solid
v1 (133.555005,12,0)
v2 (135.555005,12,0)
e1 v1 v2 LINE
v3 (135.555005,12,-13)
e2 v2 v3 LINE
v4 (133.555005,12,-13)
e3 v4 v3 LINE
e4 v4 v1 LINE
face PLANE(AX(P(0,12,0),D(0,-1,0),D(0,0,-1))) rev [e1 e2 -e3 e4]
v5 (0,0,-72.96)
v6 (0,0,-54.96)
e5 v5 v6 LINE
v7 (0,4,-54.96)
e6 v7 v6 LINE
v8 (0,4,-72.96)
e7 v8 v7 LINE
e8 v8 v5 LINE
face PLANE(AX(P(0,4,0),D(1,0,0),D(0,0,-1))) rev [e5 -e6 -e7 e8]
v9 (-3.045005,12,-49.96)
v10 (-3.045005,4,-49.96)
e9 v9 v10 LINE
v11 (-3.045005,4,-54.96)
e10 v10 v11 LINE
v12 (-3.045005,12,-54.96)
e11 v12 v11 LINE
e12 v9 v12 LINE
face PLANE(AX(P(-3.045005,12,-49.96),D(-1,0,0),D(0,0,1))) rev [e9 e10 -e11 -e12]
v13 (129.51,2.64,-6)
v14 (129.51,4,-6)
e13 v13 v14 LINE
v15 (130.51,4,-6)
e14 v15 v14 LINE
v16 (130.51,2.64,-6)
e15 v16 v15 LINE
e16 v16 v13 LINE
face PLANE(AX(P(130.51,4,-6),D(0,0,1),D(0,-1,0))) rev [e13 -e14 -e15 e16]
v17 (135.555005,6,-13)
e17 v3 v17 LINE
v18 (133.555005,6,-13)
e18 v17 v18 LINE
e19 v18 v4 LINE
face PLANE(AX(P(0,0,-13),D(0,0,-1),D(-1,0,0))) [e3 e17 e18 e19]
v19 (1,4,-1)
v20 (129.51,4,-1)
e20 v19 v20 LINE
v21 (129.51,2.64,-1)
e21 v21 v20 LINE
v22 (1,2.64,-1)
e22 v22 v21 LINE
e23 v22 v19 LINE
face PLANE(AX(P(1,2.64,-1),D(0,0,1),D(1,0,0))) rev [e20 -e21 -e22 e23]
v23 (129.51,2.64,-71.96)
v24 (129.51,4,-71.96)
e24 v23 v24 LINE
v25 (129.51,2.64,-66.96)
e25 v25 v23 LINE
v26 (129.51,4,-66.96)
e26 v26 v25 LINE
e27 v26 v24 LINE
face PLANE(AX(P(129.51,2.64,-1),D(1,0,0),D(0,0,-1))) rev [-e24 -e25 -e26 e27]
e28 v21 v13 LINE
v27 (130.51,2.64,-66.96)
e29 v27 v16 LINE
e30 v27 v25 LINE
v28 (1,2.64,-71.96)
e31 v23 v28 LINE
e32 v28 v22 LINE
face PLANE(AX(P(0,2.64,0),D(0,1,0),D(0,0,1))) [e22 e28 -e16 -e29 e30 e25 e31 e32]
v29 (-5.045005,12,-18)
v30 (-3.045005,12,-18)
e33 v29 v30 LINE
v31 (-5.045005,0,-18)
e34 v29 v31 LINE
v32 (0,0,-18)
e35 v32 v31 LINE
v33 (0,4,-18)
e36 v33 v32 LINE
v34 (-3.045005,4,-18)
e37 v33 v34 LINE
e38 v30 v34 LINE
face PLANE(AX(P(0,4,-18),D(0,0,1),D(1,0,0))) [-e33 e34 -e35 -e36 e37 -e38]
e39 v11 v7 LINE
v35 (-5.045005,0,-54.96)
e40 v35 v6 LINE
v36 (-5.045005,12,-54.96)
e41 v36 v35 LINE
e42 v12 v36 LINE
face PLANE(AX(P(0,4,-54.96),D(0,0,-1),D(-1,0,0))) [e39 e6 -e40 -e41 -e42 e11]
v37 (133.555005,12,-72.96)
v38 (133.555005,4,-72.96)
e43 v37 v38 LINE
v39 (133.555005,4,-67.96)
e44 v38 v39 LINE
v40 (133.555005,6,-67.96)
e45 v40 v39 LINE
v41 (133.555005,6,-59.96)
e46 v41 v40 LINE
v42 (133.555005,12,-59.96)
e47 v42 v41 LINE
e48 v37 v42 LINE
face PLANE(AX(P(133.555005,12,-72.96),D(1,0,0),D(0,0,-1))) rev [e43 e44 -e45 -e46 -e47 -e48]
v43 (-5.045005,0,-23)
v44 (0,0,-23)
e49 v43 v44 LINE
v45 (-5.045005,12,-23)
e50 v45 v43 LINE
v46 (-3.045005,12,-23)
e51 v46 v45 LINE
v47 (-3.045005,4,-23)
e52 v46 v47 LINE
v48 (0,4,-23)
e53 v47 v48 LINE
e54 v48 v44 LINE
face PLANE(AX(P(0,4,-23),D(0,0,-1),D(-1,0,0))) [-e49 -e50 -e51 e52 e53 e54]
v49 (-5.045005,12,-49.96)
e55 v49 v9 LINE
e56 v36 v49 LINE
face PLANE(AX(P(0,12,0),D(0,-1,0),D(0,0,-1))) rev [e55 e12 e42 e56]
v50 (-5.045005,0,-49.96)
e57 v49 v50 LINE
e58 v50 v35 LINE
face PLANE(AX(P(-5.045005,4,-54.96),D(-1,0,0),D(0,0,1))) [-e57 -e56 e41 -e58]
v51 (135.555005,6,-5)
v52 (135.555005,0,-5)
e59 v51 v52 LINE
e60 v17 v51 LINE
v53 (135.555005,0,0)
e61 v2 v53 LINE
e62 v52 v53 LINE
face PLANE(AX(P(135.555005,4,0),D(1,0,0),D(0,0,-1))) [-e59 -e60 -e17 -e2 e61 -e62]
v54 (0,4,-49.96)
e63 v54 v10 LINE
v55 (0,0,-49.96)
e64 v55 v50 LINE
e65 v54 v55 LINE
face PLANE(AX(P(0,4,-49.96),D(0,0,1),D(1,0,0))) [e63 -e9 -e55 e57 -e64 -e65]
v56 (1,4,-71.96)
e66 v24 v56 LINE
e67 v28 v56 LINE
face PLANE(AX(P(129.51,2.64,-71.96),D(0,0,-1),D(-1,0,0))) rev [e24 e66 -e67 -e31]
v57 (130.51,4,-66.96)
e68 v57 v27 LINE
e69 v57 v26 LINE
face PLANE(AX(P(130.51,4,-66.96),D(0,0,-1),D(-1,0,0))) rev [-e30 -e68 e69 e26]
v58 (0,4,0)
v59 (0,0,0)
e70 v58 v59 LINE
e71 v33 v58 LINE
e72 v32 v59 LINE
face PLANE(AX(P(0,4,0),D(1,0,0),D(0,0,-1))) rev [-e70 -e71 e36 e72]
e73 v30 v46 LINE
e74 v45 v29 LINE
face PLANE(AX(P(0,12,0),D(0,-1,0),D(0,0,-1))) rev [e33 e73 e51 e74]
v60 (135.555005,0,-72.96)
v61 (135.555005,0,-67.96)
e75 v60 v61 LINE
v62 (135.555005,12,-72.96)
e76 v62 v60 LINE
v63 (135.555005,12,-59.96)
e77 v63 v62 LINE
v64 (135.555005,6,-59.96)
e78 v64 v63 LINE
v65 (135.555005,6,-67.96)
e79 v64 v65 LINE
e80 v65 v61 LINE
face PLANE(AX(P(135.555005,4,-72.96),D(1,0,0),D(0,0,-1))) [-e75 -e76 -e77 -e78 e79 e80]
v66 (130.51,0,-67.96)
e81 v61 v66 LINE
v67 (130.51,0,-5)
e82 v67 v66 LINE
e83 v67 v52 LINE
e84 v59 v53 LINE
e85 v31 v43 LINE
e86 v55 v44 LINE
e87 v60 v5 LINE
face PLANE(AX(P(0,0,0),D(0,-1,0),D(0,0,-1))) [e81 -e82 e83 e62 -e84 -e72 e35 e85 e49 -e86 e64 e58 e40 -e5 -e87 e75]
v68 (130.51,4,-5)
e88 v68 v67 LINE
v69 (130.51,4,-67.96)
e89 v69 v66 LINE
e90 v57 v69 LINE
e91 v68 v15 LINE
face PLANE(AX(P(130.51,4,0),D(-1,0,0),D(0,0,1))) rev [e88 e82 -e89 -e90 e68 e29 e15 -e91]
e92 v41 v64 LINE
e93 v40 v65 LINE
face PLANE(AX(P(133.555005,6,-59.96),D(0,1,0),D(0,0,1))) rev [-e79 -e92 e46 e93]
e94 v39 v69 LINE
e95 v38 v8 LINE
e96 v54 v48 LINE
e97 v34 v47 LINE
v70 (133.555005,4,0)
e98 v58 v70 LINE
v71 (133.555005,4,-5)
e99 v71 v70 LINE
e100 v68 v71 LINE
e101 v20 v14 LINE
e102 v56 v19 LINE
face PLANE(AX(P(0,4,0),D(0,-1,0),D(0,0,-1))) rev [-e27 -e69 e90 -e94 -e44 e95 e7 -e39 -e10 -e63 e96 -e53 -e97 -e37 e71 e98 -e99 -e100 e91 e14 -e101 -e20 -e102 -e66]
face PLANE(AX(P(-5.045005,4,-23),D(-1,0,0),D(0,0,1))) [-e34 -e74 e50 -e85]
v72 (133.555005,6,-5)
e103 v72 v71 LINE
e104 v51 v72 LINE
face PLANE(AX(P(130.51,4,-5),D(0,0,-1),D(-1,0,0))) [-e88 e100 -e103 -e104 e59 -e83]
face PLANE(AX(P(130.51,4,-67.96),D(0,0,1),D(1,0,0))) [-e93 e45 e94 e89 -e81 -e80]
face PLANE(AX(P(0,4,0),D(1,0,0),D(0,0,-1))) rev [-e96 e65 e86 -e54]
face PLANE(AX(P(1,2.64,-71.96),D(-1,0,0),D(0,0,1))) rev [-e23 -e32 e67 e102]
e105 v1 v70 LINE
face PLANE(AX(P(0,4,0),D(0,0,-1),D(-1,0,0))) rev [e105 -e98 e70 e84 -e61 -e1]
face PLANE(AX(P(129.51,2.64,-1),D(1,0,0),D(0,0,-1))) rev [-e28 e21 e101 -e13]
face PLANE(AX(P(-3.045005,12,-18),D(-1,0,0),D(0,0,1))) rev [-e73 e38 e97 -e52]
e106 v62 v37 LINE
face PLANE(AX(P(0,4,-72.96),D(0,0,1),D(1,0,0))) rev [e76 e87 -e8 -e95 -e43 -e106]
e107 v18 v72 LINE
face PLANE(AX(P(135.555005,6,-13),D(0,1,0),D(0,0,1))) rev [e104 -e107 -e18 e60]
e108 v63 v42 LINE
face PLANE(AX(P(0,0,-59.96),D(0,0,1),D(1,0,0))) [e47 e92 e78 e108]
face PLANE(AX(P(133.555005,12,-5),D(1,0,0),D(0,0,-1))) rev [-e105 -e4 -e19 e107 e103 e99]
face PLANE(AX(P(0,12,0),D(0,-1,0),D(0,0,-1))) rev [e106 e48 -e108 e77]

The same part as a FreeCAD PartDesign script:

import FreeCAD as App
import Part
import Sketcher
from FreeCAD import Vector
Q = App.Units.Quantity

doc = App.newDocument("Part")
body = doc.addObject("PartDesign::Body", "Body")

# Sketch on XZ plane
sketch1 = body.newObject("Sketcher::SketchObject", "Sketch")
sketch1.AttachmentSupport = (doc.getObject("XZ_Plane"), [""])
sketch1.MapMode = "FlatFace"
sketch1.addGeometry([
    Part.LineSegment(Vector(0, -73, 0), Vector(0, 0, 0)),
    Part.LineSegment(Vector(0, 0, 0), Vector(131, 0, 0)),
    Part.LineSegment(Vector(131, 0, 0), Vector(131, -73, 0)),
    Part.LineSegment(Vector(131, -73, 0), Vector(0, -73, 0)),
], False)
sketch1.addConstraint([
    Sketcher.Constraint("Coincident", 0, 2, 1, 1),
    Sketcher.Constraint("Coincident", 1, 2, 2, 1),
    Sketcher.Constraint("Coincident", 2, 2, 3, 1),
    Sketcher.Constraint("Coincident", 3, 2, 0, 1),
    Sketcher.Constraint("Vertical", 0),
    Sketcher.Constraint("Horizontal", 1),
    Sketcher.Constraint("Vertical", 2),
    Sketcher.Constraint("Horizontal", 3),
    Sketcher.Constraint("Coincident", 0, 2, -1, 1),
    Sketcher.Constraint("DistanceX", 1, 1, 1, 2, Q("130.51 mm")),
    Sketcher.Constraint("DistanceY", 0, 1, 0, 2, Q("72.96 mm")),
])
pad1 = body.newObject("PartDesign::Pad", "Pad")
pad1.Profile = sketch1
pad1.Length = 4
pad1.Reversed = True

# Sketch on XZ plane
sketch2 = body.newObject("Sketcher::SketchObject", "Sketch001")
sketch2.AttachmentSupport = (doc.getObject("XZ_Plane"), [""])
sketch2.MapMode = "FlatFace"
sketch2.AttachmentOffset = App.Placement(Vector(0, 0, -4), App.Rotation())
sketch2.addGeometry([
    Part.LineSegment(Vector(1, -72, 0), Vector(1, -1, 0)),
    Part.LineSegment(Vector(1, -1, 0), Vector(130, -1, 0)),
    Part.LineSegment(Vector(130, -1, 0), Vector(130, -72, 0)),
    Part.LineSegment(Vector(130, -72, 0), Vector(1, -72, 0)),
], False)
sketch2.addConstraint([
    Sketcher.Constraint("Coincident", 0, 2, 1, 1),
    Sketcher.Constraint("Coincident", 1, 2, 2, 1),
    Sketcher.Constraint("Coincident", 2, 2, 3, 1),
    Sketcher.Constraint("Coincident", 3, 2, 0, 1),
    Sketcher.Constraint("Vertical", 0),
    Sketcher.Constraint("Horizontal", 1),
    Sketcher.Constraint("Vertical", 2),
    Sketcher.Constraint("Horizontal", 3),
    Sketcher.Constraint("DistanceX", -1, 1, 0, 2, Q("1 mm")),
    Sketcher.Constraint("DistanceY", 0, 2, -1, 1, Q("1 mm")),
    Sketcher.Constraint("DistanceX", 1, 1, 1, 2, Q("128.51 mm")),
    Sketcher.Constraint("DistanceY", 0, 1, 0, 2, Q("70.96 mm")),
])
pocket1 = body.newObject("PartDesign::Pocket", "Pocket")
pocket1.Profile = sketch2
pocket1.Length = 1.36
pocket1.Reversed = True

# Sketch on YZ plane
sketch3 = body.newObject("Sketcher::SketchObject", "Sketch002")
sketch3.AttachmentSupport = (doc.getObject("YZ_Plane"), [""])
sketch3.MapMode = "FlatFace"
sketch3.AttachmentOffset = App.Placement(Vector(0, 0, 129.51), App.Rotation())
sketch3.addGeometry([
    Part.LineSegment(Vector(4, -67, 0), Vector(2.6, -67, 0)),
    Part.LineSegment(Vector(2.6, -67, 0), Vector(2.6, -6, 0)),
    Part.LineSegment(Vector(2.6, -6, 0), Vector(4, -6, 0)),
    Part.LineSegment(Vector(4, -6, 0), Vector(4, -67, 0)),
], False)
sketch3.addConstraint([
    Sketcher.Constraint("Coincident", 0, 2, 1, 1),
    Sketcher.Constraint("Coincident", 1, 2, 2, 1),
    Sketcher.Constraint("Coincident", 2, 2, 3, 1),
    Sketcher.Constraint("Coincident", 3, 2, 0, 1),
    Sketcher.Constraint("Horizontal", 0),
    Sketcher.Constraint("Vertical", 1),
    Sketcher.Constraint("Horizontal", 2),
    Sketcher.Constraint("Vertical", 3),
    Sketcher.Constraint("DistanceY", 1, 2, -1, 1, Q("6 mm")),
    Sketcher.Constraint("DistanceX", -1, 1, 2, 2, Q("4 mm")),
    Sketcher.Constraint("DistanceX", 0, 2, 0, 1, Q("1.36 mm")),
    Sketcher.Constraint("DistanceY", 1, 1, 1, 2, Q("60.96 mm")),
])
pocket2 = body.newObject("PartDesign::Pocket", "Pocket001")
pocket2.Profile = sketch3
pocket2.Type = "ThroughAll"
pocket2.Reversed = True

# Sketch on XZ plane
sketch4 = body.newObject("Sketcher::SketchObject", "Sketch003")
sketch4.AttachmentSupport = (doc.getObject("XZ_Plane"), [""])
sketch4.MapMode = "FlatFace"
sketch4.addGeometry([
    Part.LineSegment(Vector(131, -68, 0), Vector(131, -73, 0)),  # 0
    Part.LineSegment(Vector(131, -73, 0), Vector(136, -73, 0)),  # 1
    Part.LineSegment(Vector(136, -73, 0), Vector(136, -68, 0)),  # 2
    Part.LineSegment(Vector(136, -68, 0), Vector(131, -68, 0)),  # 3
    Part.LineSegment(Vector(131, 0, 0), Vector(131, -5, 0)),  # 4
    Part.LineSegment(Vector(131, -5, 0), Vector(136, -5, 0)),  # 5
    Part.LineSegment(Vector(136, -5, 0), Vector(136, 0, 0)),  # 6
    Part.LineSegment(Vector(136, 0, 0), Vector(131, 0, 0)),  # 7
], False)
sketch4.addConstraint([
    Sketcher.Constraint("Coincident", 0, 2, 1, 1),
    Sketcher.Constraint("Coincident", 1, 2, 2, 1),
    Sketcher.Constraint("Coincident", 2, 2, 3, 1),
    Sketcher.Constraint("Coincident", 3, 2, 0, 1),
    Sketcher.Constraint("Coincident", 4, 2, 5, 1),
    Sketcher.Constraint("Coincident", 5, 2, 6, 1),
    Sketcher.Constraint("Coincident", 6, 2, 7, 1),
    Sketcher.Constraint("Coincident", 7, 2, 4, 1),
    Sketcher.Constraint("Vertical", 0),
    Sketcher.Constraint("Horizontal", 1),
    Sketcher.Constraint("Vertical", 2),
    Sketcher.Constraint("Horizontal", 3),
    Sketcher.Constraint("Vertical", 4),
    Sketcher.Constraint("Horizontal", 5),
    Sketcher.Constraint("Vertical", 6),
    Sketcher.Constraint("Horizontal", 7),
    Sketcher.Constraint("PointOnObject", 6, 2, -1),
    Sketcher.Constraint("Vertical", 3, 2, 4, 2),
    Sketcher.Constraint("Vertical", 2, 2, 5, 2),
    Sketcher.Constraint("Equal", 2, 4),
    Sketcher.Constraint("DistanceY", 0, 2, 0, 1, Q("5 mm")),
    Sketcher.Constraint("DistanceX", -1, 1, 0, 2, Q("130.51 mm")),
    Sketcher.Constraint("DistanceY", 0, 2, -1, 1, Q("72.96 mm")),
    Sketcher.Constraint("DistanceX", 1, 1, 1, 2, Q("5.045005 mm")),
])
pad2 = body.newObject("PartDesign::Pad", "Pad001")
pad2.Profile = sketch4
pad2.Length = 4
pad2.Reversed = True

# Sketch on XZ plane
sketch5 = body.newObject("Sketcher::SketchObject", "Sketch004")
sketch5.AttachmentSupport = (doc.getObject("XZ_Plane"), [""])
sketch5.MapMode = "FlatFace"
sketch5.AttachmentOffset = App.Placement(Vector(0, 0, -4), App.Rotation())
sketch5.addGeometry([
    Part.LineSegment(Vector(133.6, -73, 0), Vector(133.6, -68, 0)),  # 0
    Part.LineSegment(Vector(133.6, -68, 0), Vector(135.6, -68, 0)),  # 1
    Part.LineSegment(Vector(135.6, -68, 0), Vector(135.6, -73, 0)),  # 2
    Part.LineSegment(Vector(135.6, -73, 0), Vector(133.6, -73, 0)),  # 3
    Part.LineSegment(Vector(133.6, -5, 0), Vector(133.6, 0, 0)),  # 4
    Part.LineSegment(Vector(133.6, 0, 0), Vector(135.6, 0, 0)),  # 5
    Part.LineSegment(Vector(135.6, 0, 0), Vector(135.6, -5, 0)),  # 6
    Part.LineSegment(Vector(135.6, -5, 0), Vector(133.6, -5, 0)),  # 7
], False)
sketch5.addConstraint([
    Sketcher.Constraint("Coincident", 0, 2, 1, 1),
    Sketcher.Constraint("Coincident", 1, 2, 2, 1),
    Sketcher.Constraint("Coincident", 2, 2, 3, 1),
    Sketcher.Constraint("Coincident", 3, 2, 0, 1),
    Sketcher.Constraint("Coincident", 4, 2, 5, 1),
    Sketcher.Constraint("Coincident", 5, 2, 6, 1),
    Sketcher.Constraint("Coincident", 6, 2, 7, 1),
    Sketcher.Constraint("Coincident", 7, 2, 4, 1),
    Sketcher.Constraint("Vertical", 0),
    Sketcher.Constraint("Horizontal", 1),
    Sketcher.Constraint("Vertical", 2),
    Sketcher.Constraint("Horizontal", 3),
    Sketcher.Constraint("Vertical", 4),
    Sketcher.Constraint("Horizontal", 5),
    Sketcher.Constraint("Vertical", 6),
    Sketcher.Constraint("Horizontal", 7),
    Sketcher.Constraint("PointOnObject", 4, 2, -1),
    Sketcher.Constraint("Vertical", 3, 2, 4, 2),
    Sketcher.Constraint("Vertical", 2, 2, 5, 2),
    Sketcher.Constraint("Equal", 2, 4),
    Sketcher.Constraint("DistanceX", 1, 1, 1, 2, Q("2 mm")),
    Sketcher.Constraint("DistanceY", 0, 1, 0, 2, Q("5 mm")),
    Sketcher.Constraint("DistanceY", 0, 2, -1, 1, Q("67.96 mm")),
    Sketcher.Constraint("DistanceX", -1, 1, 0, 2, Q("133.555005 mm")),
])
pad3 = body.newObject("PartDesign::Pad", "Pad002")
pad3.Profile = sketch5
pad3.Length = 8
pad3.Reversed = True

# Sketch on XY plane
sketch6 = body.newObject("Sketcher::SketchObject", "Sketch005")
sketch6.AttachmentSupport = (doc.getObject("XY_Plane"), [""])
sketch6.MapMode = "FlatFace"
sketch6.AttachmentOffset = App.Placement(Vector(0, 0, -5), App.Rotation())
sketch6.addGeometry([
    Part.LineSegment(Vector(135.6, 12, 0), Vector(135.6, 6, 0)),
    Part.LineSegment(Vector(135.6, 6, 0), Vector(133.6, 6, 0)),
    Part.LineSegment(Vector(133.6, 6, 0), Vector(133.6, 12, 0)),
    Part.LineSegment(Vector(133.6, 12, 0), Vector(135.6, 12, 0)),
], False)
sketch6.addConstraint([
    Sketcher.Constraint("Coincident", 0, 2, 1, 1),
    Sketcher.Constraint("Coincident", 1, 2, 2, 1),
    Sketcher.Constraint("Coincident", 2, 2, 3, 1),
    Sketcher.Constraint("Coincident", 3, 2, 0, 1),
    Sketcher.Constraint("Vertical", 0),
    Sketcher.Constraint("Horizontal", 1),
    Sketcher.Constraint("Vertical", 2),
    Sketcher.Constraint("Horizontal", 3),
    Sketcher.Constraint("DistanceX", 1, 2, 1, 1, Q("2 mm")),
    Sketcher.Constraint("DistanceY", 0, 2, 0, 1, Q("6 mm")),
    Sketcher.Constraint("DistanceY", -1, 1, 0, 2, Q("6 mm")),
    Sketcher.Constraint("DistanceX", -1, 1, 0, 2, Q("135.555005 mm")),
])
pad4 = body.newObject("PartDesign::Pad", "Pad003")
pad4.Profile = sketch6
pad4.Length = 8
pad4.Reversed = True

# Sketch on XY plane
sketch7 = body.newObject("Sketcher::SketchObject", "Sketch006")
sketch7.AttachmentSupport = (doc.getObject("XY_Plane"), [""])
sketch7.MapMode = "FlatFace"
sketch7.AttachmentOffset = App.Placement(Vector(0, 0, -67.96), App.Rotation())
sketch7.addGeometry([
    Part.LineSegment(Vector(133.6, 12, 0), Vector(133.6, 6, 0)),
    Part.LineSegment(Vector(133.6, 6, 0), Vector(135.6, 6, 0)),
    Part.LineSegment(Vector(135.6, 6, 0), Vector(135.6, 12, 0)),
    Part.LineSegment(Vector(135.6, 12, 0), Vector(133.6, 12, 0)),
], False)
sketch7.addConstraint([
    Sketcher.Constraint("Coincident", 0, 2, 1, 1),
    Sketcher.Constraint("Coincident", 1, 2, 2, 1),
    Sketcher.Constraint("Coincident", 2, 2, 3, 1),
    Sketcher.Constraint("Coincident", 3, 2, 0, 1),
    Sketcher.Constraint("Vertical", 0),
    Sketcher.Constraint("Horizontal", 1),
    Sketcher.Constraint("Vertical", 2),
    Sketcher.Constraint("Horizontal", 3),
    Sketcher.Constraint("DistanceX", 1, 1, 1, 2, Q("2 mm")),
    Sketcher.Constraint("DistanceY", 0, 2, 0, 1, Q("6 mm")),
    Sketcher.Constraint("DistanceY", -1, 1, 0, 2, Q("6 mm")),
    Sketcher.Constraint("DistanceX", -1, 1, 0, 2, Q("133.555005 mm")),
])
pad5 = body.newObject("PartDesign::Pad", "Pad004")
pad5.Profile = sketch7
pad5.Length = 8

# Sketch on XZ plane
sketch8 = body.newObject("Sketcher::SketchObject", "Sketch007")
sketch8.AttachmentSupport = (doc.getObject("XZ_Plane"), [""])
sketch8.MapMode = "FlatFace"
sketch8.addGeometry([
    Part.LineSegment(Vector(-5, -50, 0), Vector(-5, -55, 0)),  # 0
    Part.LineSegment(Vector(-5, -55, 0), Vector(0, -55, 0)),  # 1
    Part.LineSegment(Vector(0, -55, 0), Vector(0, -50, 0)),  # 2
    Part.LineSegment(Vector(0, -50, 0), Vector(-5, -50, 0)),  # 3
    Part.LineSegment(Vector(-5, -18, 0), Vector(-5, -23, 0)),  # 4
    Part.LineSegment(Vector(-5, -23, 0), Vector(0, -23, 0)),  # 5
    Part.LineSegment(Vector(0, -23, 0), Vector(0, -18, 0)),  # 6
    Part.LineSegment(Vector(0, -18, 0), Vector(-5, -18, 0)),  # 7
], False)
sketch8.addConstraint([
    Sketcher.Constraint("Coincident", 0, 2, 1, 1),
    Sketcher.Constraint("Coincident", 1, 2, 2, 1),
    Sketcher.Constraint("Coincident", 2, 2, 3, 1),
    Sketcher.Constraint("Coincident", 3, 2, 0, 1),
    Sketcher.Constraint("Coincident", 4, 2, 5, 1),
    Sketcher.Constraint("Coincident", 5, 2, 6, 1),
    Sketcher.Constraint("Coincident", 6, 2, 7, 1),
    Sketcher.Constraint("Coincident", 7, 2, 4, 1),
    Sketcher.Constraint("Vertical", 0),
    Sketcher.Constraint("Horizontal", 1),
    Sketcher.Constraint("Vertical", 2),
    Sketcher.Constraint("Horizontal", 3),
    Sketcher.Constraint("Vertical", 4),
    Sketcher.Constraint("Horizontal", 5),
    Sketcher.Constraint("Vertical", 6),
    Sketcher.Constraint("Horizontal", 7),
    Sketcher.Constraint("PointOnObject", 1, 2, -2),
    Sketcher.Constraint("PointOnObject", 5, 2, -2),
    Sketcher.Constraint("Vertical", 3, 2, 4, 2),
    Sketcher.Constraint("Equal", 2, 4),
    Sketcher.Constraint("DistanceY", 0, 2, 0, 1, Q("5 mm")),
    Sketcher.Constraint("DistanceY", 4, 2, -1, 1, Q("23 mm")),
    Sketcher.Constraint("DistanceY", 0, 2, -1, 1, Q("54.96 mm")),
    Sketcher.Constraint("DistanceX", 1, 1, 1, 2, Q("5.045005 mm")),
])
pad6 = body.newObject("PartDesign::Pad", "Pad005")
pad6.Profile = sketch8
pad6.Length = 4
pad6.Reversed = True

# Sketch on XZ plane
sketch9 = body.newObject("Sketcher::SketchObject", "Sketch008")
sketch9.AttachmentSupport = (doc.getObject("XZ_Plane"), [""])
sketch9.MapMode = "FlatFace"
sketch9.AttachmentOffset = App.Placement(Vector(0, 0, -4), App.Rotation())
sketch9.addGeometry([
    Part.LineSegment(Vector(-5, -55, 0), Vector(-5, -50, 0)),  # 0
    Part.LineSegment(Vector(-5, -50, 0), Vector(-3, -50, 0)),  # 1
    Part.LineSegment(Vector(-3, -50, 0), Vector(-3, -55, 0)),  # 2
    Part.LineSegment(Vector(-3, -55, 0), Vector(-5, -55, 0)),  # 3
    Part.LineSegment(Vector(-5, -23, 0), Vector(-5, -18, 0)),  # 4
    Part.LineSegment(Vector(-5, -18, 0), Vector(-3, -18, 0)),  # 5
    Part.LineSegment(Vector(-3, -18, 0), Vector(-3, -23, 0)),  # 6
    Part.LineSegment(Vector(-3, -23, 0), Vector(-5, -23, 0)),  # 7
], False)
sketch9.addConstraint([
    Sketcher.Constraint("Coincident", 0, 2, 1, 1),
    Sketcher.Constraint("Coincident", 1, 2, 2, 1),
    Sketcher.Constraint("Coincident", 2, 2, 3, 1),
    Sketcher.Constraint("Coincident", 3, 2, 0, 1),
    Sketcher.Constraint("Coincident", 4, 2, 5, 1),
    Sketcher.Constraint("Coincident", 5, 2, 6, 1),
    Sketcher.Constraint("Coincident", 6, 2, 7, 1),
    Sketcher.Constraint("Coincident", 7, 2, 4, 1),
    Sketcher.Constraint("Vertical", 0),
    Sketcher.Constraint("Horizontal", 1),
    Sketcher.Constraint("Vertical", 2),
    Sketcher.Constraint("Horizontal", 3),
    Sketcher.Constraint("Vertical", 4),
    Sketcher.Constraint("Horizontal", 5),
    Sketcher.Constraint("Vertical", 6),
    Sketcher.Constraint("Horizontal", 7),
    Sketcher.Constraint("Vertical", 3, 2, 4, 2),
    Sketcher.Constraint("Vertical", 2, 2, 5, 2),
    Sketcher.Constraint("Equal", 2, 4),
    Sketcher.Constraint("DistanceX", 1, 1, 1, 2, Q("2 mm")),
    Sketcher.Constraint("DistanceY", 0, 1, 0, 2, Q("5 mm")),
    Sketcher.Constraint("DistanceY", 4, 2, -1, 1, Q("18 mm")),
    Sketcher.Constraint("DistanceY", 0, 2, -1, 1, Q("49.96 mm")),
    Sketcher.Constraint("DistanceX", 0, 2, -1, 1, Q("5.045005 mm")),
])
pad7 = body.newObject("PartDesign::Pad", "Pad006")
pad7.Profile = sketch9
pad7.Length = 8
pad7.Reversed = True

doc.recompute()
